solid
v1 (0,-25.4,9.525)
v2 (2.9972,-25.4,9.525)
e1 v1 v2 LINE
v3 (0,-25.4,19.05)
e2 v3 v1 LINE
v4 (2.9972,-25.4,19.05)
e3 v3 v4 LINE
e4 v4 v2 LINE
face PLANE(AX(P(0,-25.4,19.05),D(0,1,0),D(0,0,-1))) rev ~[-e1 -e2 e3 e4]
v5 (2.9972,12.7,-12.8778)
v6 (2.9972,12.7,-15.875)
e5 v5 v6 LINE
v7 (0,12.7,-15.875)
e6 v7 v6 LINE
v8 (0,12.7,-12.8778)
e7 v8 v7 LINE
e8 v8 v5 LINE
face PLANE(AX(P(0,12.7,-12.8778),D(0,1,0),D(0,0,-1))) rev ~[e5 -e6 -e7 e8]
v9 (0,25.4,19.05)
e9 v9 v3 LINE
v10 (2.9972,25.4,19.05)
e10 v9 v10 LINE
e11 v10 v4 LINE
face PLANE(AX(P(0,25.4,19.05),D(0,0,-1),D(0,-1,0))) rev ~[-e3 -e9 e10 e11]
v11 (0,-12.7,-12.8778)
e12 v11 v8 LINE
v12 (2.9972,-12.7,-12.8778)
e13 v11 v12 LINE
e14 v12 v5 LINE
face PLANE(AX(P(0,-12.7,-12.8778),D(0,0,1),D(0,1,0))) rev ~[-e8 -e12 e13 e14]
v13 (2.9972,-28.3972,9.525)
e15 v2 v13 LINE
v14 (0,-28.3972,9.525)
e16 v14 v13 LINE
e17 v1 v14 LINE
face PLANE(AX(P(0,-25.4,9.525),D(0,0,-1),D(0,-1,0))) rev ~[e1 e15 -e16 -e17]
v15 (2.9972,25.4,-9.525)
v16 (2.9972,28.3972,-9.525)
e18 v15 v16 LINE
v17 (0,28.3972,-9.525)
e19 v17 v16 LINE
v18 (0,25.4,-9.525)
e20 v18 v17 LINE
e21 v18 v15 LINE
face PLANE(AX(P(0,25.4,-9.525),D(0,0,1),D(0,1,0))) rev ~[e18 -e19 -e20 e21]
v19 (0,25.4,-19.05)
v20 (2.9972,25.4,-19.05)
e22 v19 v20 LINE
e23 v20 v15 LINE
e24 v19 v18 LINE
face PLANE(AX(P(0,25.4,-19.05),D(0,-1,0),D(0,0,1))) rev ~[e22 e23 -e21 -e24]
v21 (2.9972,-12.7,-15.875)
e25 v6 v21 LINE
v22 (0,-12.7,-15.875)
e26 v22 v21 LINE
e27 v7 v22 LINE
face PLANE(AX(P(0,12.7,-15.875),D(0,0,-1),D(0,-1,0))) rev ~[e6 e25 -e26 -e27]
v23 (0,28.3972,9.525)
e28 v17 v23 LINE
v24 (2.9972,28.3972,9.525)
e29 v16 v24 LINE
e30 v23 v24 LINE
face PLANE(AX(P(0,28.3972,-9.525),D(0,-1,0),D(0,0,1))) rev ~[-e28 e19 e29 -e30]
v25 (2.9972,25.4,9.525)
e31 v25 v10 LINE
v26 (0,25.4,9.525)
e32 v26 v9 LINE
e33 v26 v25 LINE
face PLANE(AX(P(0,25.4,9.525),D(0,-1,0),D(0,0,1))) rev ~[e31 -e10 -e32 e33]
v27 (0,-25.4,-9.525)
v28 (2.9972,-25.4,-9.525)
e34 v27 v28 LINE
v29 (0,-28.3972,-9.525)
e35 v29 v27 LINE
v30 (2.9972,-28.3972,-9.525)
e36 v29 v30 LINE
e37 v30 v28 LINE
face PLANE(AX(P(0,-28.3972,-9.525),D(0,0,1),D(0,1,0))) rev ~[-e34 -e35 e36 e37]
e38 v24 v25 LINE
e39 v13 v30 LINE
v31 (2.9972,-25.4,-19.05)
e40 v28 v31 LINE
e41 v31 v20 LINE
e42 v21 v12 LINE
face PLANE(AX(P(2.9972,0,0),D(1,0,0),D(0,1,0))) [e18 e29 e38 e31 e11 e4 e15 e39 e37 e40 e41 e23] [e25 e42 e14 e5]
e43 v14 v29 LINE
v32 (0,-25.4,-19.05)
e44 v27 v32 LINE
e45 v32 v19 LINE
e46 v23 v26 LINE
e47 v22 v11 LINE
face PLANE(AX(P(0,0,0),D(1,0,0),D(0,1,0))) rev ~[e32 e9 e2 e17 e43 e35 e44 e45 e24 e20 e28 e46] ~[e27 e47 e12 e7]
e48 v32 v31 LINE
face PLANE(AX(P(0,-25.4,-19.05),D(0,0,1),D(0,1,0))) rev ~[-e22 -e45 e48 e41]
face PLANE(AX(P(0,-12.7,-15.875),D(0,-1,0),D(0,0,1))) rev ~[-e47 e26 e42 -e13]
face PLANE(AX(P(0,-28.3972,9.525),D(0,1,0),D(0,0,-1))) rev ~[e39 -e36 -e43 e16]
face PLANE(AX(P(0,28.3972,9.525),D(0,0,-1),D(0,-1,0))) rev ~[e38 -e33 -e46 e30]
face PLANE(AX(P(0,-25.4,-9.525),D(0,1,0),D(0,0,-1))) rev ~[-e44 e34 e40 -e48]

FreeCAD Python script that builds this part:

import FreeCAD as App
import Part
import Sketcher
Q = App.Units.Quantity


def add_polygon(sketch, points):
    """Adds a closed chain of lines whose ends are joined by coincident constraints."""
    first, n = sketch.GeometryCount, len(points)
    for a, b in zip(points, points[1:] + points[:1]):
        sketch.addGeometry(Part.LineSegment(App.Vector(*a, 0), App.Vector(*b, 0)), False)
    for i in range(n):
        sketch.addConstraint(Sketcher.Constraint("Coincident", first + i, 2, first + (i + 1) % n, 1))

doc = App.newDocument("Part")
body = doc.addObject("PartDesign::Body", "Body")

sketch1 = body.newObject("Sketcher::SketchObject", "Sketch")
sketch1.AttachmentSupport = (doc.getObject("YZ_Plane"), [""])
sketch1.MapMode = "FlatFace"
add_polygon(sketch1, [(-25.4, 9.5), (-28.4, 9.5), (-28.4, -9.5), (-25.4, -9.5), (-25.4, -19.1), (25.4, -19.1), (25.4, -9.5), (28.4, -9.5), (28.4, 9.5), (25.4, 9.5), (25.4, 19.1), (-25.4, 19.1)])
add_polygon(sketch1, [(-12.7, -15.9), (-12.7, -12.9), (12.7, -12.9), (12.7, -15.9)])
sketch1.addConstraint(Sketcher.Constraint("Horizontal", 0))
sketch1.addConstraint(Sketcher.Constraint("Vertical", 1))
sketch1.addConstraint(Sketcher.Constraint("Horizontal", 2))
sketch1.addConstraint(Sketcher.Constraint("Vertical", 3))
sketch1.addConstraint(Sketcher.Constraint("Horizontal", 4))
sketch1.addConstraint(Sketcher.Constraint("Vertical", 5))
sketch1.addConstraint(Sketcher.Constraint("Horizontal", 6))
sketch1.addConstraint(Sketcher.Constraint("Vertical", 7))
sketch1.addConstraint(Sketcher.Constraint("Horizontal", 8))
sketch1.addConstraint(Sketcher.Constraint("Vertical", 9))
sketch1.addConstraint(Sketcher.Constraint("Horizontal", 10))
sketch1.addConstraint(Sketcher.Constraint("Vertical", 11))
sketch1.addConstraint(Sketcher.Constraint("Vertical", 12))
sketch1.addConstraint(Sketcher.Constraint("Horizontal", 13))
sketch1.addConstraint(Sketcher.Constraint("Vertical", 14))
sketch1.addConstraint(Sketcher.Constraint("Horizontal", 15))
sketch1.addConstraint(Sketcher.Constraint("Symmetric", 0, 2, 6, 2, -1, 1))
sketch1.addConstraint(Sketcher.Constraint("Symmetric", 2, 2, 8, 2, -1, 1))
sketch1.addConstraint(Sketcher.Constraint("Symmetric", 4, 2, 10, 2, -1, 1))
sketch1.addConstraint(Sketcher.Constraint("Symmetric", 2, 2, 5, 2, -2))
sketch1.addConstraint(Sketcher.Constraint("Equal", 8, 12))
sketch1.addConstraint(Sketcher.Constraint("DistanceX", 4, 1, 4, 2, Q("2 in")))
sketch1.addConstraint(Sketcher.Constraint("DistanceX", 13, 1, 13, 2, Q("1 in")))
sketch1.addConstraint(Sketcher.Constraint("DistanceY", 1, 2, 1, 1, Q("0.75 in")))
sketch1.addConstraint(Sketcher.Constraint("DistanceX", 12, 2, -1, 1, Q("0.5 in")))
sketch1.addConstraint(Sketcher.Constraint("DistanceY", 4, 2, 9, 2, Q("1.5 in")))
sketch1.addConstraint(Sketcher.Constraint("DistanceX", 0, 2, 0, 1, Q("0.118 in")))
sketch1.addConstraint(Sketcher.Constraint("DistanceY", 14, 2, 5, 2, Q("0.25 in")))
pad1 = body.newObject("PartDesign::Pad", "Pad")
pad1.Profile = sketch1
pad1.Length = Q("0.118 in")

doc.recompute()
